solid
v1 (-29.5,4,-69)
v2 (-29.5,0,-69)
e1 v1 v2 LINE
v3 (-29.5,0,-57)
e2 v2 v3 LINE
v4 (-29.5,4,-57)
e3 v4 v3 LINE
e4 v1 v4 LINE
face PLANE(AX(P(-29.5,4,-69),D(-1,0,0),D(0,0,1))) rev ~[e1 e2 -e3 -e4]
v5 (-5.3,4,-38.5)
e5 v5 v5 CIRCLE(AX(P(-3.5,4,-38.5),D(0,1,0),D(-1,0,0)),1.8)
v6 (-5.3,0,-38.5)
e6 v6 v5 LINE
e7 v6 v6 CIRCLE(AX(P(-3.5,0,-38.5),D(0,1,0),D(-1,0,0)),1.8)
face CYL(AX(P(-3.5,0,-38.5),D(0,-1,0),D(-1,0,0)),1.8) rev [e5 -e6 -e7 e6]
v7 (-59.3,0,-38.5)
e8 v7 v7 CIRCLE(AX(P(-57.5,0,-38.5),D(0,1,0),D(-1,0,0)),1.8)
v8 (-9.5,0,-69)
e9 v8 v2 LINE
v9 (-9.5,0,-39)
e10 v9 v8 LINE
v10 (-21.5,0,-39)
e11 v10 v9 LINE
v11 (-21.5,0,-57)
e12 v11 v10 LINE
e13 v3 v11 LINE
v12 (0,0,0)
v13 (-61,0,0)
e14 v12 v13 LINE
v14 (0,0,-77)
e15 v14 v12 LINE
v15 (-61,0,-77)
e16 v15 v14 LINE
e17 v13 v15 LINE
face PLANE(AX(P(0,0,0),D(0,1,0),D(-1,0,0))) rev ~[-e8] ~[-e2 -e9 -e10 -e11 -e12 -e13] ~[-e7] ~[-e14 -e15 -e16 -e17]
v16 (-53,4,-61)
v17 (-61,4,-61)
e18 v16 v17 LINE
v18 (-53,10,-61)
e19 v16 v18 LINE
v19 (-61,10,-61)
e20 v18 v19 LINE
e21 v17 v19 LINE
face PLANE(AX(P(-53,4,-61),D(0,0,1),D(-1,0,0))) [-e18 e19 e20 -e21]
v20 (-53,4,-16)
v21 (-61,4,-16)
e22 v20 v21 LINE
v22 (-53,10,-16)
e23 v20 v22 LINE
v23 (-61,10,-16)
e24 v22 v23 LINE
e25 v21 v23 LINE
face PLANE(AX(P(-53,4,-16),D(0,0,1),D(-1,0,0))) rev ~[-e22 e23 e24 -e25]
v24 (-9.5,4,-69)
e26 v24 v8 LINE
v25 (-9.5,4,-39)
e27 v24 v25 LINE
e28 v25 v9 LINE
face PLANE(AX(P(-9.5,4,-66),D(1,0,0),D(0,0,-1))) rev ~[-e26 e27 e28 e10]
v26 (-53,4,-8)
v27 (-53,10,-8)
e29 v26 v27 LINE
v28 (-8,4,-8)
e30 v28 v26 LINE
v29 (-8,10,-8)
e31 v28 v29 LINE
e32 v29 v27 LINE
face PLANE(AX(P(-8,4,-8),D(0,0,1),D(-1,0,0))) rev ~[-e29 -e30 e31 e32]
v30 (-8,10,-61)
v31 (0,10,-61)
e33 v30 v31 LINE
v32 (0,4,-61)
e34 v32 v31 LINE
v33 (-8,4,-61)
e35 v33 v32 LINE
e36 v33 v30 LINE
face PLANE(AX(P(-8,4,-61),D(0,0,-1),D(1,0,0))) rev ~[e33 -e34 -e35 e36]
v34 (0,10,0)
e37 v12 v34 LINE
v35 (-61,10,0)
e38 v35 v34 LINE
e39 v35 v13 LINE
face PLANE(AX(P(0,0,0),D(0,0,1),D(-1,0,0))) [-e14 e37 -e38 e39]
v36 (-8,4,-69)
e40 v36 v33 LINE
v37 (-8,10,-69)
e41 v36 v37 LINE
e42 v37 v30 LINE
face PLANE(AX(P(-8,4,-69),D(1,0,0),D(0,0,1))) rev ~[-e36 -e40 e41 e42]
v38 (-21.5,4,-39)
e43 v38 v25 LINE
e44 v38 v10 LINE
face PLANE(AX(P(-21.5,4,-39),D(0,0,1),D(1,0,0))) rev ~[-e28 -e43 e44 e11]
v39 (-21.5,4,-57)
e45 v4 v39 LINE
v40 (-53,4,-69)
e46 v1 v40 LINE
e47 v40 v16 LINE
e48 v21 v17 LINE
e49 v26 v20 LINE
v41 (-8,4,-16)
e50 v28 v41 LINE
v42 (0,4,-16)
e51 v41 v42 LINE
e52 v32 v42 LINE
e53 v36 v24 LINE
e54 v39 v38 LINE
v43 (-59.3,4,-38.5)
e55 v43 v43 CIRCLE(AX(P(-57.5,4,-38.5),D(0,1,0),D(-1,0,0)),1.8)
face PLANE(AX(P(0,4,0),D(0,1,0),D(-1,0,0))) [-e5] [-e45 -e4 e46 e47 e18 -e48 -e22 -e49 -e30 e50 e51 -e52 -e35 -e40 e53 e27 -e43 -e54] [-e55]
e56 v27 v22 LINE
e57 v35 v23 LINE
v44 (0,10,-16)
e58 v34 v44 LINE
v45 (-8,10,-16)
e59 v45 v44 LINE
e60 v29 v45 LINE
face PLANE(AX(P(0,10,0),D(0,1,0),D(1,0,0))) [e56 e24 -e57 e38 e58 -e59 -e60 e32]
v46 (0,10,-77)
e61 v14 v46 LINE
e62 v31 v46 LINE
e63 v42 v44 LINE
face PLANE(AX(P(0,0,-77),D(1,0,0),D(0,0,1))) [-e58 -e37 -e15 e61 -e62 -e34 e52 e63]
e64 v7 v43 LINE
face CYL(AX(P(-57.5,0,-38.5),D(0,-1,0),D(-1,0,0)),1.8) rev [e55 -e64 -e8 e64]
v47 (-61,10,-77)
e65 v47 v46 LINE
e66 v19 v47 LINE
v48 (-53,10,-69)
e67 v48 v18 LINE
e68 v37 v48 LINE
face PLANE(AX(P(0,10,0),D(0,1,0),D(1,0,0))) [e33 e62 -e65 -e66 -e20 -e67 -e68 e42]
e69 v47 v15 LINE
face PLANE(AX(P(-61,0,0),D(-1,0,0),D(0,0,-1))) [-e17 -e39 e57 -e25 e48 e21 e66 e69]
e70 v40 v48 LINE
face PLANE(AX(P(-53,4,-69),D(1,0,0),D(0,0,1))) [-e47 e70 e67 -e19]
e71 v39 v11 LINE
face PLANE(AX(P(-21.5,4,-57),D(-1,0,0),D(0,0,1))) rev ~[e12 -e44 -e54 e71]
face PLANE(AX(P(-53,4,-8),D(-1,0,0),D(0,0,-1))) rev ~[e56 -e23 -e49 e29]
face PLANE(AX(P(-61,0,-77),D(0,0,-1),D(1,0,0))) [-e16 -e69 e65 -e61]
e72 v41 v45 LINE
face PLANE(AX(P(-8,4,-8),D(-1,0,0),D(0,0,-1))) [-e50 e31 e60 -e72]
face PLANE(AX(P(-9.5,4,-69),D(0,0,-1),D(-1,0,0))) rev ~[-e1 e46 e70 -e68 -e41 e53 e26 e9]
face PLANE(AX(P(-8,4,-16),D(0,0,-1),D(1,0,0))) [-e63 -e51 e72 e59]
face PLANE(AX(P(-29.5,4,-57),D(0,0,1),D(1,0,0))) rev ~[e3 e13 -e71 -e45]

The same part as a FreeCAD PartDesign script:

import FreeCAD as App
import Part
import Sketcher

doc = App.newDocument("Part")
body = doc.addObject("PartDesign::Body", "Body")

sketch1 = body.newObject("Sketcher::SketchObject", "Sketch")
sketch1.AttachmentSupport = (doc.getObject("XZ_Plane"), [""])
sketch1.MapMode = "FlatFace"
sketch1.addGeometry(Part.LineSegment(App.Vector(-61, 0, 0), App.Vector(0, 0, 0)), False)
sketch1.addGeometry(Part.LineSegment(App.Vector(0, 0, 0), App.Vector(0, -77, 0)), False)
sketch1.addGeometry(Part.LineSegment(App.Vector(0, -77, 0), App.Vector(-61, -77, 0)), False)
sketch1.addGeometry(Part.LineSegment(App.Vector(-61, -77, 0), App.Vector(-61, 0, 0)), False)
sketch1.addGeometry(Part.Circle(App.Vector(-3.5, -38.5, 0), App.Vector(0, 0, 1), 1.8), False)
sketch1.addGeometry(Part.Circle(App.Vector(-57.5, -38.5, 0), App.Vector(0, 0, 1), 1.8), False)
sketch1.addConstraint(Sketcher.Constraint("Coincident", 0, 2, 1, 1))
sketch1.addConstraint(Sketcher.Constraint("Coincident", 1, 2, 2, 1))
sketch1.addConstraint(Sketcher.Constraint("Coincident", 2, 2, 3, 1))
sketch1.addConstraint(Sketcher.Constraint("Coincident", 3, 2, 0, 1))
sketch1.addConstraint(Sketcher.Constraint("Horizontal", 0))
sketch1.addConstraint(Sketcher.Constraint("Vertical", 1))
sketch1.addConstraint(Sketcher.Constraint("Horizontal", 2))
sketch1.addConstraint(Sketcher.Constraint("Vertical", 3))
sketch1.addConstraint(Sketcher.Constraint("Coincident", 0, 2, -1, 1))
sketch1.addConstraint(Sketcher.Constraint("Equal", 4, 5))
sketch1.addConstraint(Sketcher.Constraint("Horizontal", 4, 3, 5, 3))
sketch1.addConstraint(Sketcher.Constraint("Diameter", 4, 3.6))
sketch1.addConstraint(Sketcher.Constraint("DistanceX", 0, 1, 0, 2, 61.0))
sketch1.addConstraint(Sketcher.Constraint("DistanceY", 1, 2, 1, 1, 77.0))
sketch1.addConstraint(Sketcher.Constraint("DistanceX", 5, 3, 4, 3, 54.0))
sketch1.addConstraint(Sketcher.Constraint("DistanceX", 4, 3, -1, 1, 3.5))
sketch1.addConstraint(Sketcher.Constraint("DistanceY", 4, 3, -1, 1, 38.5))
pad1 = body.newObject("PartDesign::Pad", "Pad")
pad1.Profile = sketch1
pad1.Length = 4
pad1.Reversed = True

sketch2 = body.newObject("Sketcher::SketchObject", "Sketch001")
sketch2.AttachmentSupport = (doc.getObject("XZ_Plane"), [""])
sketch2.MapMode = "FlatFace"
sketch2.AttachmentOffset = App.Placement(App.Vector(0, 0, -4), App.Rotation())
sketch2.addGeometry(Part.LineSegment(App.Vector(-61, -77, 0), App.Vector(-61, -61, 0)), False)
sketch2.addGeometry(Part.LineSegment(App.Vector(-61, -61, 0), App.Vector(-53, -61, 0)), False)
sketch2.addGeometry(Part.LineSegment(App.Vector(-53, -61, 0), App.Vector(-53, -69, 0)), False)
sketch2.addGeometry(Part.LineSegment(App.Vector(-53, -69, 0), App.Vector(-8, -69, 0)), False)
sketch2.addGeometry(Part.LineSegment(App.Vector(-8, -69, 0), App.Vector(-8, -61, 0)), False)
sketch2.addGeometry(Part.LineSegment(App.Vector(-8, -61, 0), App.Vector(0, -61, 0)), False)
sketch2.addGeometry(Part.LineSegment(App.Vector(0, -61, 0), App.Vector(0, -77, 0)), False)
sketch2.addGeometry(Part.LineSegment(App.Vector(0, -77, 0), App.Vector(-61, -77, 0)), False)
sketch2.addGeometry(Part.LineSegment(App.Vector(-53, -16, 0), App.Vector(-61, -16, 0)), False)
sketch2.addGeometry(Part.LineSegment(App.Vector(-61, -16, 0), App.Vector(-61, 0, 0)), False)
sketch2.addGeometry(Part.LineSegment(App.Vector(-61, 0, 0), App.Vector(0, 0, 0)), False)
sketch2.addGeometry(Part.LineSegment(App.Vector(0, 0, 0), App.Vector(0, -16, 0)), False)
sketch2.addGeometry(Part.LineSegment(App.Vector(0, -16, 0), App.Vector(-8, -16, 0)), False)
sketch2.addGeometry(Part.LineSegment(App.Vector(-8, -16, 0), App.Vector(-8, -8, 0)), False)
sketch2.addGeometry(Part.LineSegment(App.Vector(-8, -8, 0), App.Vector(-53, -8, 0)), False)
sketch2.addGeometry(Part.LineSegment(App.Vector(-53, -8, 0), App.Vector(-53, -16, 0)), False)
sketch2.addConstraint(Sketcher.Constraint("Coincident", 0, 2, 1, 1))
sketch2.addConstraint(Sketcher.Constraint("Coincident", 1, 2, 2, 1))
sketch2.addConstraint(Sketcher.Constraint("Coincident", 2, 2, 3, 1))
sketch2.addConstraint(Sketcher.Constraint("Coincident", 3, 2, 4, 1))
sketch2.addConstraint(Sketcher.Constraint("Coincident", 4, 2, 5, 1))
sketch2.addConstraint(Sketcher.Constraint("Coincident", 5, 2, 6, 1))
sketch2.addConstraint(Sketcher.Constraint("Coincident", 6, 2, 7, 1))
sketch2.addConstraint(Sketcher.Constraint("Coincident", 7, 2, 0, 1))
sketch2.addConstraint(Sketcher.Constraint("Coincident", 8, 2, 9, 1))
sketch2.addConstraint(Sketcher.Constraint("Coincident", 9, 2, 10, 1))
sketch2.addConstraint(Sketcher.Constraint("Coincident", 10, 2, 11, 1))
sketch2.addConstraint(Sketcher.Constraint("Coincident", 11, 2, 12, 1))
sketch2.addConstraint(Sketcher.Constraint("Coincident", 12, 2, 13, 1))
sketch2.addConstraint(Sketcher.Constraint("Coincident", 13, 2, 14, 1))
sketch2.addConstraint(Sketcher.Constraint("Coincident", 14, 2, 15, 1))
sketch2.addConstraint(Sketcher.Constraint("Coincident", 15, 2, 8, 1))
sketch2.addConstraint(Sketcher.Constraint("Vertical", 0))
sketch2.addConstraint(Sketcher.Constraint("Horizontal", 1))
sketch2.addConstraint(Sketcher.Constraint("Vertical", 2))
sketch2.addConstraint(Sketcher.Constraint("Horizontal", 3))
sketch2.addConstraint(Sketcher.Constraint("Vertical", 4))
sketch2.addConstraint(Sketcher.Constraint("Horizontal", 5))
sketch2.addConstraint(Sketcher.Constraint("Vertical", 6))
sketch2.addConstraint(Sketcher.Constraint("Horizontal", 7))
sketch2.addConstraint(Sketcher.Constraint("Horizontal", 8))
sketch2.addConstraint(Sketcher.Constraint("Vertical", 9))
sketch2.addConstraint(Sketcher.Constraint("Horizontal", 10))
sketch2.addConstraint(Sketcher.Constraint("Vertical", 11))
sketch2.addConstraint(Sketcher.Constraint("Horizontal", 12))
sketch2.addConstraint(Sketcher.Constraint("Vertical", 13))
sketch2.addConstraint(Sketcher.Constraint("Horizontal", 14))
sketch2.addConstraint(Sketcher.Constraint("Vertical", 15))
sketch2.addConstraint(Sketcher.Constraint("Coincident", 10, 2, -1, 1))
sketch2.addConstraint(Sketcher.Constraint("PointOnObject", 5, 2, -2))
sketch2.addConstraint(Sketcher.Constraint("Horizontal", 1, 2, 4, 2))
sketch2.addConstraint(Sketcher.Constraint("Horizontal", 8, 2, 11, 2))
sketch2.addConstraint(Sketcher.Constraint("Vertical", 7, 2, 8, 2))
sketch2.addConstraint(Sketcher.Constraint("Vertical", 4, 2, 12, 2))
sketch2.addConstraint(Sketcher.Constraint("Vertical", 2, 2, 14, 2))
sketch2.addConstraint(Sketcher.Constraint("Equal", 1, 5))
sketch2.addConstraint(Sketcher.Constraint("Equal", 12, 2))
sketch2.addConstraint(Sketcher.Constraint("Equal", 6, 9))
sketch2.addConstraint(Sketcher.Constraint("Equal", 4, 13))
sketch2.addConstraint(Sketcher.Constraint("DistanceX", 1, 1, 1, 2, 8.0))
sketch2.addConstraint(Sketcher.Constraint("DistanceY", 0, 1, 0, 2, 16.0))
sketch2.addConstraint(Sketcher.Constraint("DistanceX", 3, 1, 3, 2, 45.0))
sketch2.addConstraint(Sketcher.Constraint("DistanceY", 0, 2, -1, 1, 61.0))
pad2 = body.newObject("PartDesign::Pad", "Pad001")
pad2.Profile = sketch2
pad2.Length = 6
pad2.Reversed = True

sketch3 = body.newObject("Sketcher::SketchObject", "Sketch002")
sketch3.AttachmentSupport = (doc.getObject("XZ_Plane"), [""])
sketch3.MapMode = "FlatFace"
sketch3.AttachmentOffset = App.Placement(App.Vector(0, 0, -4), App.Rotation())
sketch3.addGeometry(Part.LineSegment(App.Vector(-10, -69, 0), App.Vector(-30, -69, 0)), False)
sketch3.addGeometry(Part.LineSegment(App.Vector(-30, -69, 0), App.Vector(-30, -57, 0)), False)
sketch3.addGeometry(Part.LineSegment(App.Vector(-30, -57, 0), App.Vector(-22, -57, 0)), False)
sketch3.addGeometry(Part.LineSegment(App.Vector(-22, -57, 0), App.Vector(-22, -39, 0)), False)
sketch3.addGeometry(Part.LineSegment(App.Vector(-22, -39, 0), App.Vector(-10, -39, 0)), False)
sketch3.addGeometry(Part.LineSegment(App.Vector(-10, -39, 0), App.Vector(-10, -69, 0)), False)
sketch3.addConstraint(Sketcher.Constraint("Coincident", 0, 2, 1, 1))
sketch3.addConstraint(Sketcher.Constraint("Coincident", 1, 2, 2, 1))
sketch3.addConstraint(Sketcher.Constraint("Coincident", 2, 2, 3, 1))
sketch3.addConstraint(Sketcher.Constraint("Coincident", 3, 2, 4, 1))
sketch3.addConstraint(Sketcher.Constraint("Coincident", 4, 2, 5, 1))
sketch3.addConstraint(Sketcher.Constraint("Coincident", 5, 2, 0, 1))
sketch3.addConstraint(Sketcher.Constraint("Horizontal", 0))
sketch3.addConstraint(Sketcher.Constraint("Vertical", 1))
sketch3.addConstraint(Sketcher.Constraint("Horizontal", 2))
sketch3.addConstraint(Sketcher.Constraint("Vertical", 3))
sketch3.addConstraint(Sketcher.Constraint("Horizontal", 4))
sketch3.addConstraint(Sketcher.Constraint("Vertical", 5))
sketch3.addConstraint(Sketcher.Constraint("Equal", 4, 1))
sketch3.addConstraint(Sketcher.Constraint("DistanceX", 0, 2, 0, 1, 20.0))
sketch3.addConstraint(Sketcher.Constraint("DistanceX", 2, 1, 2, 2, 8.0))
sketch3.addConstraint(Sketcher.Constraint("DistanceY", 5, 2, 5, 1, 30.0))
sketch3.addConstraint(Sketcher.Constraint("DistanceX", 4, 2, -1, 1, 9.5))
sketch3.addConstraint(Sketcher.Constraint("DistanceY", 0, 2, -1, 1, 69.0))
pocket1 = body.newObject("PartDesign::Pocket", "Pocket")
pocket1.Profile = sketch3
pocket1.Type = "ThroughAll"
pocket1.Reversed = True

doc.recompute()
